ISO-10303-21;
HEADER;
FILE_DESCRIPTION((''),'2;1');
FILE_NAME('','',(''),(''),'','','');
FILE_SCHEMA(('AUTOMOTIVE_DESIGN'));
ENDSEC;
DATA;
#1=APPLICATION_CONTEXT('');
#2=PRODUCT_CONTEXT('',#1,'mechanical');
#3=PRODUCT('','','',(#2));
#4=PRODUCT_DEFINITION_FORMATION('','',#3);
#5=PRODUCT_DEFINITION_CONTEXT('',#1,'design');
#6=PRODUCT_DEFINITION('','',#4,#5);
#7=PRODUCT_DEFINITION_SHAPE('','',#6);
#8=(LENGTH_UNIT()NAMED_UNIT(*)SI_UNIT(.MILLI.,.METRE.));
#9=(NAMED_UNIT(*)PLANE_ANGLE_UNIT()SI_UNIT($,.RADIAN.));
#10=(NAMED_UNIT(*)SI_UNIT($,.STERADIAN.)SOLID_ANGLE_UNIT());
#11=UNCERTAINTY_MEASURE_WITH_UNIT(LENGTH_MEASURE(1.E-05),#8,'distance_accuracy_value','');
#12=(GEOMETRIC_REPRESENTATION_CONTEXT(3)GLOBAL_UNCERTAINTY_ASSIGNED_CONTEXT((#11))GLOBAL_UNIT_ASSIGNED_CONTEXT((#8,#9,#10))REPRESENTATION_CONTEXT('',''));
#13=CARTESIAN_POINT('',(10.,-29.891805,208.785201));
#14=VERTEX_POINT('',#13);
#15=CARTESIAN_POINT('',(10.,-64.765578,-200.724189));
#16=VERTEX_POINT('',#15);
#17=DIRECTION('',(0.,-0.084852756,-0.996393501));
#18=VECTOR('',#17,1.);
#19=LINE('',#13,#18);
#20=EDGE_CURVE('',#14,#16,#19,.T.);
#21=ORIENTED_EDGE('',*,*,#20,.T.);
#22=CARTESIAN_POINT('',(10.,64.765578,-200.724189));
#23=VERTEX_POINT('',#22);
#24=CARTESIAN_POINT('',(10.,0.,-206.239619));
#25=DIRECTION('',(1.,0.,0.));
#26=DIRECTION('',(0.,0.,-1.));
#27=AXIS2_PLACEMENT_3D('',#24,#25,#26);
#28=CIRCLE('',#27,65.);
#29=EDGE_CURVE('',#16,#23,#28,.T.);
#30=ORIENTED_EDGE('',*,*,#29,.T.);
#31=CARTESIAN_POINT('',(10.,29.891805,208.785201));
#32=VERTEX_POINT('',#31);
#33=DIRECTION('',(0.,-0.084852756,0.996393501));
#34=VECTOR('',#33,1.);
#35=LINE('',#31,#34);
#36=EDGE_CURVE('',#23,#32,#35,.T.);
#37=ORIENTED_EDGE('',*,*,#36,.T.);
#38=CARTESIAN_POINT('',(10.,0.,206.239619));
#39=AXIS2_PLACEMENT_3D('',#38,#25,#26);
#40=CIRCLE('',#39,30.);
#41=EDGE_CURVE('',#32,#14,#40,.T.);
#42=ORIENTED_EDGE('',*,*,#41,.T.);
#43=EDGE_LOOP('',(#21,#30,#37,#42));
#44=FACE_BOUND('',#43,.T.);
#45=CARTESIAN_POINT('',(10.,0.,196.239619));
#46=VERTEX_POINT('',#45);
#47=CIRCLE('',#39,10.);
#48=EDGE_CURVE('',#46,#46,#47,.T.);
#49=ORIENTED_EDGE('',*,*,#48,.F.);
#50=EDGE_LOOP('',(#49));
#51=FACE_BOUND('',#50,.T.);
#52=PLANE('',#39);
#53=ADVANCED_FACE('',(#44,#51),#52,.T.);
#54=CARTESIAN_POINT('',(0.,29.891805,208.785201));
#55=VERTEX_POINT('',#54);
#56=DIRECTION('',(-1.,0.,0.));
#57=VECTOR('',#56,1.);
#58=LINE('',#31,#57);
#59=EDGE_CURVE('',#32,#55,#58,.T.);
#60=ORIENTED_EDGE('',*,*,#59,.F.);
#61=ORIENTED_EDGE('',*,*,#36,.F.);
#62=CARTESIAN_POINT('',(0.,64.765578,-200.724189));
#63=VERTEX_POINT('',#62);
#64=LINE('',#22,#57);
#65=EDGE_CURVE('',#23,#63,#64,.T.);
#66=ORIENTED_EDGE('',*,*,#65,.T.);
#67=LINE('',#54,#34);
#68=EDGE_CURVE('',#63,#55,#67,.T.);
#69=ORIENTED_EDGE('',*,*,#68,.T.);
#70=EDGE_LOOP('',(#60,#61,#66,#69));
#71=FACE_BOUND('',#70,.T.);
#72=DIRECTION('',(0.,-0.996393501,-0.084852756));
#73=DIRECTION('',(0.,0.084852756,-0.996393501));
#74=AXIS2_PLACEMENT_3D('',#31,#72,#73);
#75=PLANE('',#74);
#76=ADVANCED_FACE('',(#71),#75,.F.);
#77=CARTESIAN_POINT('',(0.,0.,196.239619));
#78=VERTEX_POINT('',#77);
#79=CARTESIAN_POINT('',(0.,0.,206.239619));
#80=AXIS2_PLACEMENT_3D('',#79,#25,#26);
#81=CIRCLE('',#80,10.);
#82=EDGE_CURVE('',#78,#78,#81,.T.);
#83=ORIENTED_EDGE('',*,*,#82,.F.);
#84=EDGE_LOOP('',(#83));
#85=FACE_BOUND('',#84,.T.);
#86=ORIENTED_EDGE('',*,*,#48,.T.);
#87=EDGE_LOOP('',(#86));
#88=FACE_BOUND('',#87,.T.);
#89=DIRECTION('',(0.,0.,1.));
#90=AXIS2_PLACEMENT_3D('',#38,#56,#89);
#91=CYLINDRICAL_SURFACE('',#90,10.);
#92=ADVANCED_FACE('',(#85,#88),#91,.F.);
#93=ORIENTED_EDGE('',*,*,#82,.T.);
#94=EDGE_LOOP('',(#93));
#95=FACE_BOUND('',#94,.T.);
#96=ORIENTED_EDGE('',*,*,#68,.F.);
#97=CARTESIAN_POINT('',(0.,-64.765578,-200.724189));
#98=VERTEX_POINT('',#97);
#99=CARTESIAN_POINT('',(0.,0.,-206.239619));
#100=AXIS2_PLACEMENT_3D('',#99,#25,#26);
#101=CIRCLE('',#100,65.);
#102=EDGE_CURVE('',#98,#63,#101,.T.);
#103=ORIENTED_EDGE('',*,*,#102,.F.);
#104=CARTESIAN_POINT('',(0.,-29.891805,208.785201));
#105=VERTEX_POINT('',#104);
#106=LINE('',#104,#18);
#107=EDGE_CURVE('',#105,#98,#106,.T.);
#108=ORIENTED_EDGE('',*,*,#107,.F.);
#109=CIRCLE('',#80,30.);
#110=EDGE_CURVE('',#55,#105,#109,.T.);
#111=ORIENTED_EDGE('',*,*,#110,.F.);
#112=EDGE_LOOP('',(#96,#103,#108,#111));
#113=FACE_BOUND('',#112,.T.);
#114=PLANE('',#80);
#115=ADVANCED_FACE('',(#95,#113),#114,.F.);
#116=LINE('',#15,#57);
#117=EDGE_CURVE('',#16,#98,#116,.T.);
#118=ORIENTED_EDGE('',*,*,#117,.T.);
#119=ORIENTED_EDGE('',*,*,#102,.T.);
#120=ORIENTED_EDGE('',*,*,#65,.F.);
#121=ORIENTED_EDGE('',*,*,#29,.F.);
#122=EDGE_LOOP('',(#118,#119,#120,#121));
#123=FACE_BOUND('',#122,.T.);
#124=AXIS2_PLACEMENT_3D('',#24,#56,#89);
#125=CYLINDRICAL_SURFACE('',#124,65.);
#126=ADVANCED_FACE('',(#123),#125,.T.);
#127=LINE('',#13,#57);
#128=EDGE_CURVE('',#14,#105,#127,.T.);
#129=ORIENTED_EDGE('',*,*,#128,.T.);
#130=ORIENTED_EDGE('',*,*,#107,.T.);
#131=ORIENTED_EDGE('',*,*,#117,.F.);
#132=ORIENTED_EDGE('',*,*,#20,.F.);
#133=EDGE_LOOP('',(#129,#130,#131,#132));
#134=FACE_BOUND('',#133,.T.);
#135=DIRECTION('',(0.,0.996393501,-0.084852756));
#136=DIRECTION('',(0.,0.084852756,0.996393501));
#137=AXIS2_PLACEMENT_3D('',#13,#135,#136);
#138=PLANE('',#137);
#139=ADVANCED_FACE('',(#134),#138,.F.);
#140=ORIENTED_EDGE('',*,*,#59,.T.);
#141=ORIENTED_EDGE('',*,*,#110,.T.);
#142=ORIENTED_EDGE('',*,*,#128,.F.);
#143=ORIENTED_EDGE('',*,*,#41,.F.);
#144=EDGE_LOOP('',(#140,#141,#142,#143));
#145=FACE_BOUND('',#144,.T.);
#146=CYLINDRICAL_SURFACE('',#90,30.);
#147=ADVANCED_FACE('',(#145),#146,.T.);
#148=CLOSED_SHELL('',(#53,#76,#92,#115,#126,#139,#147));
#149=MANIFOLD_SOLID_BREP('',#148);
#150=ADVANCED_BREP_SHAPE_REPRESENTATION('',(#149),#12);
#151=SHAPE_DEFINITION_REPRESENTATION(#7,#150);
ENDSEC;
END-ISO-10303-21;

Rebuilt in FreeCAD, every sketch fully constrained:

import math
import FreeCAD as App
import Part
import Sketcher
Q = App.Units.Quantity

doc = App.newDocument("Part")
body = doc.addObject("PartDesign::Body", "Body")

sketch1 = body.newObject("Sketcher::SketchObject", "Sketch")
sketch1.AttachmentSupport = (doc.getObject("YZ_Plane"), [""])
sketch1.MapMode = "FlatFace"
sketch1.addGeometry(Part.LineSegment(App.Vector(64.765578, -200.724189, 0), App.Vector(29.891805, 208.785201, 0)), False)
sketch1.addGeometry(Part.ArcOfCircle(Part.Circle(App.Vector(0, 206.239619, 0), App.Vector(0, 0, 1), 30), math.radians(4.867558), math.radians(175.132442)), False)
sketch1.addGeometry(Part.LineSegment(App.Vector(-29.891805, 208.785201, 0), App.Vector(-64.765578, -200.724189, 0)), False)
sketch1.addGeometry(Part.ArcOfCircle(Part.Circle(App.Vector(0, -206.239619, 0), App.Vector(0, 0, 1), 65), math.radians(175.132442), math.radians(364.867558)), False)
sketch1.addGeometry(Part.Circle(App.Vector(0, 206.239619, 0), App.Vector(0, 0, 1), 10), False)
sketch1.addConstraint(Sketcher.Constraint("Tangent", 0, 2, 1, 1))
sketch1.addConstraint(Sketcher.Constraint("Tangent", 1, 2, 2, 1))
sketch1.addConstraint(Sketcher.Constraint("Tangent", 2, 2, 3, 1))
sketch1.addConstraint(Sketcher.Constraint("Tangent", 3, 2, 0, 1))
sketch1.addConstraint(Sketcher.Constraint("Coincident", 4, 3, 1, 3))
sketch1.addConstraint(Sketcher.Constraint("Symmetric", 1, 3, 3, 3, -1, 1))
sketch1.addConstraint(Sketcher.Constraint("PointOnObject", 1, 3, -2))
sketch1.addConstraint(Sketcher.Constraint("Diameter", 4, Q("20 mm")))
sketch1.addConstraint(Sketcher.Constraint("Radius", 1, Q("30 mm")))
sketch1.addConstraint(Sketcher.Constraint("Radius", 3, Q("65 mm")))
sketch1.addConstraint(Sketcher.Constraint("DistanceY", -1, 1, 0, 2, Q("208.785201 mm")))
pad1 = body.newObject("PartDesign::Pad", "Pad")
pad1.Profile = sketch1
pad1.Length = 10

doc.recompute()
